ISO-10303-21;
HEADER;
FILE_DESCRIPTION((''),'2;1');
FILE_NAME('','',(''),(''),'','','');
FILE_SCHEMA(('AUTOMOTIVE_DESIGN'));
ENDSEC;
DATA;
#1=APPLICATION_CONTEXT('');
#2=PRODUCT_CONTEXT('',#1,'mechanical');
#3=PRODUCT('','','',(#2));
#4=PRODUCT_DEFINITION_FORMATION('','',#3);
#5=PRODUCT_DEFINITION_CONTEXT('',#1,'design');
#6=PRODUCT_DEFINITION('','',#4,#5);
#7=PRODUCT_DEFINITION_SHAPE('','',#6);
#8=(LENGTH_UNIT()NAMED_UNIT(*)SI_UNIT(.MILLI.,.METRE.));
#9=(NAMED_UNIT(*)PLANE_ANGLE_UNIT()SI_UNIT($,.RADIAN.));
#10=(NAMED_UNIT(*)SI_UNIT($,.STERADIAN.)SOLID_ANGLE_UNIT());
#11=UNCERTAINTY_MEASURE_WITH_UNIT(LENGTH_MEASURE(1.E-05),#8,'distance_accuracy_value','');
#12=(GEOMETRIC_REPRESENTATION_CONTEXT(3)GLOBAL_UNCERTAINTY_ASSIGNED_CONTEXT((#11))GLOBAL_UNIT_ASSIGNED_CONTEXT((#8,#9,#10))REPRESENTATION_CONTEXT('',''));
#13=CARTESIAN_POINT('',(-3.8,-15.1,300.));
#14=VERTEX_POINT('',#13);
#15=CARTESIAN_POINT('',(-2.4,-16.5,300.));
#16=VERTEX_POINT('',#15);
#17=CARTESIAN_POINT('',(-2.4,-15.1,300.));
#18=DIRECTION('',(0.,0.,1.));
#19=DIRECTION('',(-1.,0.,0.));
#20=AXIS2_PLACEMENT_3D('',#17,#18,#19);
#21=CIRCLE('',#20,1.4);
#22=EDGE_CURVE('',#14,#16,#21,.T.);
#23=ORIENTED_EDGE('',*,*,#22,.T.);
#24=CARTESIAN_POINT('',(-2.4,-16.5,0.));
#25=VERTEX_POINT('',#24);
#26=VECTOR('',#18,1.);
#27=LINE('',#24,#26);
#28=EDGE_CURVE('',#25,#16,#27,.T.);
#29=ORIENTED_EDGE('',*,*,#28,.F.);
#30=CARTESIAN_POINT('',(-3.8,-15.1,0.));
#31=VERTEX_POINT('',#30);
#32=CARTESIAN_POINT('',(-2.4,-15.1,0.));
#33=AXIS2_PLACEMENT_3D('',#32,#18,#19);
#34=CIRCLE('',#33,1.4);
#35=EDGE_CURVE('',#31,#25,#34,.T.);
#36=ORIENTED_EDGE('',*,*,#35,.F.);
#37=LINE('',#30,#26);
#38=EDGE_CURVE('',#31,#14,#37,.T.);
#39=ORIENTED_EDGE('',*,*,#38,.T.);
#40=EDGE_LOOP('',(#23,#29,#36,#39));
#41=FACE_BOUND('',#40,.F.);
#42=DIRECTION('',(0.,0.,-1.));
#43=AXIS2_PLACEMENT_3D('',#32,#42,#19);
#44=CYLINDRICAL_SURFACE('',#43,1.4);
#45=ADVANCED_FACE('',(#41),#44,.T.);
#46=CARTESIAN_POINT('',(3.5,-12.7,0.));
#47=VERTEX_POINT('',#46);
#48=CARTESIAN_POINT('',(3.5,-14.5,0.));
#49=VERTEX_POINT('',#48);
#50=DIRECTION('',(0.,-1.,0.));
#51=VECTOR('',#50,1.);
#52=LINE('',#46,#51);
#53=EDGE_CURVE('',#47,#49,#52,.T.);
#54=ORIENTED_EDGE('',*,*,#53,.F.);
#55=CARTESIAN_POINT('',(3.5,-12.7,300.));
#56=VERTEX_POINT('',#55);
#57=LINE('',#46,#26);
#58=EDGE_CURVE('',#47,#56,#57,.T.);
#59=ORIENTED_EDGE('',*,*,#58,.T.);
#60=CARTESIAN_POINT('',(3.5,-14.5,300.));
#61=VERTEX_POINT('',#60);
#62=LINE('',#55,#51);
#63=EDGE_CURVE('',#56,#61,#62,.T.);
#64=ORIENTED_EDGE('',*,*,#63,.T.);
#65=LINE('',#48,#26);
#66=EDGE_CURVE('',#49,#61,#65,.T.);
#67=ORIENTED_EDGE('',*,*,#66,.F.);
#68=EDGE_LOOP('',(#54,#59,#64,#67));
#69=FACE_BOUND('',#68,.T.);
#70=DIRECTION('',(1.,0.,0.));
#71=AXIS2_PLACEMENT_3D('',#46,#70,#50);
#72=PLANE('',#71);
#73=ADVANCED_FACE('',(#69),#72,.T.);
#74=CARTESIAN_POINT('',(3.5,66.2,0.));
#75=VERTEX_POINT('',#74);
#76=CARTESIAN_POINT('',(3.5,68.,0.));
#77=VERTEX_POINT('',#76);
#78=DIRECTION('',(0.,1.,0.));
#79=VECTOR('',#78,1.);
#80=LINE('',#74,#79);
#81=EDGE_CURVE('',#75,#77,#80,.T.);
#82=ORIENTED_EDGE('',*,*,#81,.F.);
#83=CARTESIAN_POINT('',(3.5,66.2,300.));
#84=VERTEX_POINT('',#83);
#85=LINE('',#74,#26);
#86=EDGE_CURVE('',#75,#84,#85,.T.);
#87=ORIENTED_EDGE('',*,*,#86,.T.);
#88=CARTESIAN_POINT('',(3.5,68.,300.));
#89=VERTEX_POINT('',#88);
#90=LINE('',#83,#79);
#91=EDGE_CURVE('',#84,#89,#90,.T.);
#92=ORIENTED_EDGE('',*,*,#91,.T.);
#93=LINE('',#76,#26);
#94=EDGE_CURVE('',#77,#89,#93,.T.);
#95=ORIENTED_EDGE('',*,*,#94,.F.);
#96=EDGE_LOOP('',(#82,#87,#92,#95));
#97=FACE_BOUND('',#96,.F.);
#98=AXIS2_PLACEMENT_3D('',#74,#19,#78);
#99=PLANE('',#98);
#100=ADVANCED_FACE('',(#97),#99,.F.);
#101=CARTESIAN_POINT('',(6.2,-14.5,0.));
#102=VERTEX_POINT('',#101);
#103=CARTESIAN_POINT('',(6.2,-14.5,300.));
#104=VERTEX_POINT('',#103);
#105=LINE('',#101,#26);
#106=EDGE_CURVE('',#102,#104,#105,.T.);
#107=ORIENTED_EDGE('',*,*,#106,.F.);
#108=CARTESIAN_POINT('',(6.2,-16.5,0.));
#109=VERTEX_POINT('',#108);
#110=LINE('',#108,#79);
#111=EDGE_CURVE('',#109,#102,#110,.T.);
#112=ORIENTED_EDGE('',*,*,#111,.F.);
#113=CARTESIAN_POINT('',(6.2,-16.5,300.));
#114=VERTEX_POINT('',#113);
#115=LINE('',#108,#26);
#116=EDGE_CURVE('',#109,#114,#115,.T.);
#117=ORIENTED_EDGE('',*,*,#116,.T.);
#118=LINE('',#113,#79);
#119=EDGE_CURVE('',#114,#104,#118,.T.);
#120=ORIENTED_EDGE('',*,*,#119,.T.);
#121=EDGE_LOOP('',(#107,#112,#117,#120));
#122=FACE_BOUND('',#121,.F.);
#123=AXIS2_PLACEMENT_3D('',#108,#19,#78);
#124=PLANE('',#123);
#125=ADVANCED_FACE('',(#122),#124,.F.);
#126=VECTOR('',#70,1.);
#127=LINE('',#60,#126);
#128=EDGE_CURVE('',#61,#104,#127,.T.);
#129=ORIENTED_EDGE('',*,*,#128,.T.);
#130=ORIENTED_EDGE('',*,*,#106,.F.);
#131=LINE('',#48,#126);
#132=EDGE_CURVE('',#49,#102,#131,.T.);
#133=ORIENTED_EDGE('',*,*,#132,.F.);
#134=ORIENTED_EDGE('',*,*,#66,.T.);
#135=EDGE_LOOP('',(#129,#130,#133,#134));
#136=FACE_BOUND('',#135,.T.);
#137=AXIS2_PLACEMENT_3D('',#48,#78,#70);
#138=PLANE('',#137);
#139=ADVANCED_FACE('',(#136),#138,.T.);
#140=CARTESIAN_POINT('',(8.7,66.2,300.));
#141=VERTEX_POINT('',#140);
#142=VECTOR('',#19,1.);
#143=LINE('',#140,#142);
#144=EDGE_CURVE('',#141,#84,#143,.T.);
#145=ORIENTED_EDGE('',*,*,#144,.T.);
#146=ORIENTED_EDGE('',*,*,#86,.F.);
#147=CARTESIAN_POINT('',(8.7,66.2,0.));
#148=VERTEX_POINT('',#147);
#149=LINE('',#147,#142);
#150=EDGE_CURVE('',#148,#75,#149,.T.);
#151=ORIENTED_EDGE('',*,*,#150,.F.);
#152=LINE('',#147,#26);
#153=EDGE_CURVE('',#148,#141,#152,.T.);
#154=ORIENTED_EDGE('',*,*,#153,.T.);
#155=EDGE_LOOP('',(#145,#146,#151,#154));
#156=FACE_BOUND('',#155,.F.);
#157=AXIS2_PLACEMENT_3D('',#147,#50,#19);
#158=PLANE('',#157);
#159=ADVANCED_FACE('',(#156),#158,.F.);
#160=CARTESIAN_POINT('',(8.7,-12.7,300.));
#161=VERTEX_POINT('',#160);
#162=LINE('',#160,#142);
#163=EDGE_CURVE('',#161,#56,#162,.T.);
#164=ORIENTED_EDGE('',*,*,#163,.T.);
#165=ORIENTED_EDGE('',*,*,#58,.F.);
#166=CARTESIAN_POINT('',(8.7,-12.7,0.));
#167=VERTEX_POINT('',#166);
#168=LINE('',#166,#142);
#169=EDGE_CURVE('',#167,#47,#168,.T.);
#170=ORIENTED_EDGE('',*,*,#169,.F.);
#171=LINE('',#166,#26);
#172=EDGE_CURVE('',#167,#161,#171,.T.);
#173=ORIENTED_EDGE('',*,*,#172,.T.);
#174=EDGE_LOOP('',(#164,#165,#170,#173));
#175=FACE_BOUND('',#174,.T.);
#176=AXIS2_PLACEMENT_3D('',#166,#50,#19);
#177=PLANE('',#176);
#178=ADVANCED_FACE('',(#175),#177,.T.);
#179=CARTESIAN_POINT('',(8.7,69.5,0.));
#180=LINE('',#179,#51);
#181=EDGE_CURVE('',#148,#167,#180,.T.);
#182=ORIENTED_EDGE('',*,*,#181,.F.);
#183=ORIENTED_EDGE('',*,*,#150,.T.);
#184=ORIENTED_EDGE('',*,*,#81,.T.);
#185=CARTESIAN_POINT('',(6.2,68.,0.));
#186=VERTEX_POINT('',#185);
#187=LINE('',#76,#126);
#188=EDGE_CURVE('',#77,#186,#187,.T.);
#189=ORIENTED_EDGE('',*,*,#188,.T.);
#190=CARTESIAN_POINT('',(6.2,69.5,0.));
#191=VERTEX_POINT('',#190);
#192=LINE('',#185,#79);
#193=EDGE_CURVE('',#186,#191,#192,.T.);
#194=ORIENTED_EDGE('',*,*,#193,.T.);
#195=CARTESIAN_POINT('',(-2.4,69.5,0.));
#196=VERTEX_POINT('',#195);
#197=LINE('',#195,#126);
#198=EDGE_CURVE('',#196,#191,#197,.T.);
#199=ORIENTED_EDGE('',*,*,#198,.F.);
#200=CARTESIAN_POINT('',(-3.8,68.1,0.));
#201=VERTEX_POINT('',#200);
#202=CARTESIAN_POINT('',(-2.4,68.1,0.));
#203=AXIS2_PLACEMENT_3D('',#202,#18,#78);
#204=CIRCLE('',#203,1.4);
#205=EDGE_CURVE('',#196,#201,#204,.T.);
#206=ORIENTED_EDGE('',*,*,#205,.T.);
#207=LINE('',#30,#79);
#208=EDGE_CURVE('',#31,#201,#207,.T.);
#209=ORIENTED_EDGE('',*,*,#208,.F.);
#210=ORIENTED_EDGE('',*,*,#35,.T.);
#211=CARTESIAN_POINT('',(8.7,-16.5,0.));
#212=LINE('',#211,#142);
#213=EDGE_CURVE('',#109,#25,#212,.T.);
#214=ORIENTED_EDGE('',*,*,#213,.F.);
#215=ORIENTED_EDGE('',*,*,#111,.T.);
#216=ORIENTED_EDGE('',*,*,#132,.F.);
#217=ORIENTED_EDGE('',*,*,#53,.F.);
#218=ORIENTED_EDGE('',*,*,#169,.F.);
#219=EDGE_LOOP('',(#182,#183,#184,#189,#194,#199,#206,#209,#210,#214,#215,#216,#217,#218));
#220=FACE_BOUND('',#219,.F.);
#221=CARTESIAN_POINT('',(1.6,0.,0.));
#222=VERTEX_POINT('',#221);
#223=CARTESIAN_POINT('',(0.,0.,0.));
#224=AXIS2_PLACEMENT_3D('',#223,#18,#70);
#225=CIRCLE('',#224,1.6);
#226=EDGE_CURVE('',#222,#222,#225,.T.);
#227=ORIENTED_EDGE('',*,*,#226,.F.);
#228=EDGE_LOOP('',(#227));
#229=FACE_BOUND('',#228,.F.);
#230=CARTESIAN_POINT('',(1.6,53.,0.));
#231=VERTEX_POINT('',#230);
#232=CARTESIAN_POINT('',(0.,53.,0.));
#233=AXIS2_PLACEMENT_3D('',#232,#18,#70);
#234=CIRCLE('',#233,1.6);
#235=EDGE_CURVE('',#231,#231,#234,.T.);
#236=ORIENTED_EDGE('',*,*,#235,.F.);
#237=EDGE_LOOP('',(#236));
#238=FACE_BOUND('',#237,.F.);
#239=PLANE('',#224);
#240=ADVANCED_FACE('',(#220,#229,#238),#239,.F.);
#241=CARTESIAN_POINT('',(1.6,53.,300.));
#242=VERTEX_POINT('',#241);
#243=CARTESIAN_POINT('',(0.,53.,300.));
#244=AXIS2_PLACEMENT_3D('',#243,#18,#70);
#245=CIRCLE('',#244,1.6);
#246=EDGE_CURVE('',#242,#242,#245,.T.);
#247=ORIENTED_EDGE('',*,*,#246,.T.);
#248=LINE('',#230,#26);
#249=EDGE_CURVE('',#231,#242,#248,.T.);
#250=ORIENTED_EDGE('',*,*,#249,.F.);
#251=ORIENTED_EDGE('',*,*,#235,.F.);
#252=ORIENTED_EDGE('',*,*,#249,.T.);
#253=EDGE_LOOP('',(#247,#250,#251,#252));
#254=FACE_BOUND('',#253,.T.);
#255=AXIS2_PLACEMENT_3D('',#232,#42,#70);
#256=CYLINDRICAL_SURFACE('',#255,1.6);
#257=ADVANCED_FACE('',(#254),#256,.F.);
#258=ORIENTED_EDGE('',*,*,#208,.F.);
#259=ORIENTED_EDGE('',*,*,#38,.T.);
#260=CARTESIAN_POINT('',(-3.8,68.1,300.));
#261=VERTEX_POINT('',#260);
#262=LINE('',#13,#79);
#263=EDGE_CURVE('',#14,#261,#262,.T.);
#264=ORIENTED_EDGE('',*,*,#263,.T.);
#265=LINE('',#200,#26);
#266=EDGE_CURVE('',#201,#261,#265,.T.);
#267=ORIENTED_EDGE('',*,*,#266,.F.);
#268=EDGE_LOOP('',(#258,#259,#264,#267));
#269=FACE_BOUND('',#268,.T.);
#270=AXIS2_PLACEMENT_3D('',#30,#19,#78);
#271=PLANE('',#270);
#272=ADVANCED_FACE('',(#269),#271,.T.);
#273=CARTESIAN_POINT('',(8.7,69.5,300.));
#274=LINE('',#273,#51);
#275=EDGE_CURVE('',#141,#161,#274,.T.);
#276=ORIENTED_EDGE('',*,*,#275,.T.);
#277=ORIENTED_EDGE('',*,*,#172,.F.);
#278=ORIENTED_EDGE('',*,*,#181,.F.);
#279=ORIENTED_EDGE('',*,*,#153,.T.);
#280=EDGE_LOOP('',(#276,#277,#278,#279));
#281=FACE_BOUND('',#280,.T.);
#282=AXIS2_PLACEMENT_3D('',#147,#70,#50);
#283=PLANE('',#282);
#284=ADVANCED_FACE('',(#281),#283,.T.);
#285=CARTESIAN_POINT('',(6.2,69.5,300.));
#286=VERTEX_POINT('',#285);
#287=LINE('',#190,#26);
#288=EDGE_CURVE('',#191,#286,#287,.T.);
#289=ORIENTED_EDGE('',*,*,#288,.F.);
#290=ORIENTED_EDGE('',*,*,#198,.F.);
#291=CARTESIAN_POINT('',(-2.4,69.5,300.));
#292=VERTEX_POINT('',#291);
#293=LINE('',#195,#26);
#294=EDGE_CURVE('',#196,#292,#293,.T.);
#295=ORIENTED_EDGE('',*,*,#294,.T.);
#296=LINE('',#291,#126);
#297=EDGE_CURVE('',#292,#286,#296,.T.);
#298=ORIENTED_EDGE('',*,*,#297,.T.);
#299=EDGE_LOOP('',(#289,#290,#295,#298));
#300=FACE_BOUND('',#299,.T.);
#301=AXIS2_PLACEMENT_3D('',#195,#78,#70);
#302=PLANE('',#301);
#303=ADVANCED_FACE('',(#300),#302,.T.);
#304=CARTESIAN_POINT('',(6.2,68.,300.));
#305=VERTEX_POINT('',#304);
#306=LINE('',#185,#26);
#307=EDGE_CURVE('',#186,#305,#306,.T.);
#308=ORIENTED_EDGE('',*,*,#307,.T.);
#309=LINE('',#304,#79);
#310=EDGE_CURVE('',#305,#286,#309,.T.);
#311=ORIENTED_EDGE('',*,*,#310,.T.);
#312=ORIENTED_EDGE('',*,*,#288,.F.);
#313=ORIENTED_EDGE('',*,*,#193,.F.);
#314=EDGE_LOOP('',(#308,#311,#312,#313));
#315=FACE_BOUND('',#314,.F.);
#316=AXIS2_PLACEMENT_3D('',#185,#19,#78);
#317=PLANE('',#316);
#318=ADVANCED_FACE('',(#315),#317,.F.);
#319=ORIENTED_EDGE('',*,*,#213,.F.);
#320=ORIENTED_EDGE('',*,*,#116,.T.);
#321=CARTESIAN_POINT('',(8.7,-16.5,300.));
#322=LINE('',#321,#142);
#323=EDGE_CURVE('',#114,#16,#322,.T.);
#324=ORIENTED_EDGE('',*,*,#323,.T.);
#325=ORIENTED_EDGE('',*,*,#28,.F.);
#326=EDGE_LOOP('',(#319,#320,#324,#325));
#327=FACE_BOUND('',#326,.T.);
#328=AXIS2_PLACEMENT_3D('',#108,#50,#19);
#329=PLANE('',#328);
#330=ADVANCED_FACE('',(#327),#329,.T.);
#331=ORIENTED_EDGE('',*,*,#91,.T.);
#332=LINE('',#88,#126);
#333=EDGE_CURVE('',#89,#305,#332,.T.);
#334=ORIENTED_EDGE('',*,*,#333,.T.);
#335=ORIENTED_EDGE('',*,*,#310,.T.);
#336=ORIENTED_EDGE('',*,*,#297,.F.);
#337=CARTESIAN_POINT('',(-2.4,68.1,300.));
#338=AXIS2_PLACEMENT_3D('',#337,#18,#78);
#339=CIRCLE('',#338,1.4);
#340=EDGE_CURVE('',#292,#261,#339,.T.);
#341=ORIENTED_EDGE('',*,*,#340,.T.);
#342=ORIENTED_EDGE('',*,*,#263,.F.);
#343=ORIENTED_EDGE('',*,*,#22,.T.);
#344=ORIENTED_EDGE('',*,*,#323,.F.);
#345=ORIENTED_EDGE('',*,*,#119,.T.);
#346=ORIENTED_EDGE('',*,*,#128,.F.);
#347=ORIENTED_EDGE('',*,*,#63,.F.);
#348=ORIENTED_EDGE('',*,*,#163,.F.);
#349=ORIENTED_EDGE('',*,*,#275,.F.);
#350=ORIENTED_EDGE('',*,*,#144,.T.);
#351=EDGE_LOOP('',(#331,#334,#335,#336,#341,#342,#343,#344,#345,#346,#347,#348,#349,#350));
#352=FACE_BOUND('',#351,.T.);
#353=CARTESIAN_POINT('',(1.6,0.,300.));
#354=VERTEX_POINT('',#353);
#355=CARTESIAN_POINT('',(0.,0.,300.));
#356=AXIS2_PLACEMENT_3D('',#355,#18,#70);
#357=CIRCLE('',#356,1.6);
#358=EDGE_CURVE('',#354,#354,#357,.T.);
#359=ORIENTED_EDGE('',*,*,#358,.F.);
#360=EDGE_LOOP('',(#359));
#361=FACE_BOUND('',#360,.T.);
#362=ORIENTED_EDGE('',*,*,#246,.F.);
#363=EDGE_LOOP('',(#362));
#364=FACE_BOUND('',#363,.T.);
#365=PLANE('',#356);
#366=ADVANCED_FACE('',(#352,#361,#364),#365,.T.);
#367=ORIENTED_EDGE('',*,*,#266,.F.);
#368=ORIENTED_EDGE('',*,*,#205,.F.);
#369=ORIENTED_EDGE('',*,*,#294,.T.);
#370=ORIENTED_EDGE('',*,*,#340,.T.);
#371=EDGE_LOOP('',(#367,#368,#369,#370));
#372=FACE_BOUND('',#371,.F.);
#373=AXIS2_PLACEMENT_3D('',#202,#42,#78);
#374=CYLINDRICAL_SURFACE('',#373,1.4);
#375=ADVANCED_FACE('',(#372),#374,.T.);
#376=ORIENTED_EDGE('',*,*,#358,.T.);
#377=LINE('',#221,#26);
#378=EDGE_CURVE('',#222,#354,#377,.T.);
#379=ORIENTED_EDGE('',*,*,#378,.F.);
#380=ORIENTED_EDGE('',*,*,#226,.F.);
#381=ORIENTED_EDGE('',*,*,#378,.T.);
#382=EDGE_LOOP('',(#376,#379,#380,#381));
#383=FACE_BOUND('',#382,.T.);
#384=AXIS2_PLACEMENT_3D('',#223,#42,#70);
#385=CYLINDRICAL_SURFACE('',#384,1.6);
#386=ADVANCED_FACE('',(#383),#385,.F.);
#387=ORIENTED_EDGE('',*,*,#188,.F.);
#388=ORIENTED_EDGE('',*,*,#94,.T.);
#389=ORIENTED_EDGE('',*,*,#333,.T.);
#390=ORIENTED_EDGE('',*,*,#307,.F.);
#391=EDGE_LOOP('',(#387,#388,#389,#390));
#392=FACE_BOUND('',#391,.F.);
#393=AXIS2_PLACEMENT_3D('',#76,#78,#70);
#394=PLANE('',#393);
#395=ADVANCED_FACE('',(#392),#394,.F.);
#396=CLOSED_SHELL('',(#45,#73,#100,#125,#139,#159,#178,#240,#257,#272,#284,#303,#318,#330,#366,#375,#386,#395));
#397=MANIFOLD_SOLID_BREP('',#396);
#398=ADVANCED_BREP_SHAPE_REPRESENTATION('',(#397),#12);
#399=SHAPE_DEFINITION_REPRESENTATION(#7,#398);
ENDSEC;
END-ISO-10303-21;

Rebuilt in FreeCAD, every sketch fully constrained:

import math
import FreeCAD as App
import Part
import Sketcher

V = App.Vector
Q = App.Units.Quantity

doc = App.newDocument("Part")
params = doc.addObject("Spreadsheet::Sheet", "Params")
for row, (alias, value) in enumerate([
    ("sketch1_diameter", "3.2 mm"),
    ("sketch1_radius", "1.4 mm"),
    ("sketch1_height", "2 mm"),
    ("sketch1_width", "5.2 mm"),
    ("sketch1_height2", "1.8 mm"),
    ("pad1_length", "300 mm"),
], start=1):
    params.set(f"A{row}", alias)
    params.set(f"B{row}", "=" + value)
    params.setAlias(f"B{row}", alias)

body = doc.addObject("PartDesign::Body", "Body")

# Sketch on XY plane
sketch1 = doc.addObject("Sketcher::SketchObject", "Sketch")
body.addObject(sketch1)
sketch1.AttachmentSupport = (doc.XY_Plane, [""])
sketch1.MapMode = "FlatFace"
sketch1.addGeometry([
    Part.LineSegment(V(6.2, 69.5, 0), V(-2.4, 69.5, 0)),  # 0
    Part.ArcOfCircle(Part.Circle(V(-2.4, 68.1, 0), V(0, 0, 1), 1.4), math.radians(90), math.radians(180)),  # 1
    Part.LineSegment(V(-3.8, 68.1, 0), V(-3.8, -15.1, 0)),  # 2
    Part.ArcOfCircle(Part.Circle(V(-2.4, -15.1, 0), V(0, 0, 1), 1.4), math.radians(180), math.radians(270)),  # 3
    Part.LineSegment(V(-2.4, -16.5, 0), V(6.2, -16.5, 0)),  # 4
    Part.LineSegment(V(6.2, -16.5, 0), V(6.2, -14.5, 0)),  # 5
    Part.LineSegment(V(6.2, -14.5, 0), V(3.5, -14.5, 0)),  # 6
    Part.LineSegment(V(3.5, -14.5, 0), V(3.5, -12.7, 0)),  # 7
    Part.LineSegment(V(3.5, -12.7, 0), V(8.7, -12.7, 0)),  # 8
    Part.LineSegment(V(8.7, -12.7, 0), V(8.7, 66.2, 0)),  # 9
    Part.LineSegment(V(8.7, 66.2, 0), V(3.5, 66.2, 0)),  # 10
    Part.LineSegment(V(3.5, 66.2, 0), V(3.5, 68, 0)),  # 11
    Part.LineSegment(V(3.5, 68, 0), V(6.2, 68, 0)),  # 12
    Part.LineSegment(V(6.2, 68, 0), V(6.2, 69.5, 0)),  # 13
    Part.Circle(V(0, 0, 0), V(0, 0, 1), 1.6),  # 14
    Part.Circle(V(0, 53, 0), V(0, 0, 1), 1.6),  # 15
], False)
sketch1.addConstraint([
    Sketcher.Constraint("Tangent", 0, 2, 1, 1),
    Sketcher.Constraint("Tangent", 1, 2, 2, 1),
    Sketcher.Constraint("Tangent", 2, 2, 3, 1),
    Sketcher.Constraint("Tangent", 3, 2, 4, 1),
    Sketcher.Constraint("Coincident", 4, 2, 5, 1),
    Sketcher.Constraint("Coincident", 5, 2, 6, 1),
    Sketcher.Constraint("Coincident", 6, 2, 7, 1),
    Sketcher.Constraint("Coincident", 7, 2, 8, 1),
    Sketcher.Constraint("Coincident", 8, 2, 9, 1),
    Sketcher.Constraint("Coincident", 9, 2, 10, 1),
    Sketcher.Constraint("Coincident", 10, 2, 11, 1),
    Sketcher.Constraint("Coincident", 11, 2, 12, 1),
    Sketcher.Constraint("Coincident", 12, 2, 13, 1),
    Sketcher.Constraint("Coincident", 13, 2, 0, 1),
    Sketcher.Constraint("Horizontal", 0),
    Sketcher.Constraint("Vertical", 2),
    Sketcher.Constraint("Horizontal", 4),
    Sketcher.Constraint("Vertical", 5),
    Sketcher.Constraint("Horizontal", 6),
    Sketcher.Constraint("Vertical", 7),
    Sketcher.Constraint("Horizontal", 8),
    Sketcher.Constraint("Vertical", 9),
    Sketcher.Constraint("Horizontal", 10),
    Sketcher.Constraint("Vertical", 11),
    Sketcher.Constraint("Horizontal", 12),
    Sketcher.Constraint("Vertical", 13),
    Sketcher.Constraint("Coincident", 14, 3, -1, 1),
    Sketcher.Constraint("Equal", 1, 3),
    Sketcher.Constraint("Equal", 14, 15),
    Sketcher.Constraint("PointOnObject", 15, 3, -2),
    Sketcher.Constraint("Vertical", 7, 2, 10, 2),
    Sketcher.Constraint("Vertical", 5, 2, 12, 2),
    Sketcher.Constraint("Equal", 7, 11),
    Sketcher.Constraint("Diameter", 14, Q("3.2 mm")),
    Sketcher.Constraint("Radius", 1, Q("1.4 mm")),
    Sketcher.Constraint("DistanceY", 5, 1, 5, 2, Q("2 mm")),
    Sketcher.Constraint("DistanceX", 8, 1, 8, 2, Q("5.2 mm")),
    Sketcher.Constraint("DistanceY", 7, 1, 7, 2, Q("1.8 mm")),
    Sketcher.Constraint("DistanceY", 13, 1, 13, 2, Q("1.5 mm")),
    Sketcher.Constraint("DistanceX", 1, 2, -1, 1, Q("3.8 mm")),
    Sketcher.Constraint("DistanceY", 3, 2, -1, 1, Q("16.5 mm")),
    Sketcher.Constraint("DistanceY", 15, 3, 0, 2, Q("16.5 mm")),
    Sketcher.Constraint("DistanceX", 5, 2, 8, 2, Q("2.5 mm")),
    Sketcher.Constraint("DistanceX", 1, 2, 9, 2, Q("12.5 mm")),
    Sketcher.Constraint("DistanceY", 2, 2, 2, 1, Q("83.2 mm")),
])
sketch1.setExpression("Constraints[33]", "Params.sketch1_diameter")
sketch1.setExpression("Constraints[34]", "Params.sketch1_radius")
sketch1.setExpression("Constraints[35]", "Params.sketch1_height")
sketch1.setExpression("Constraints[36]", "Params.sketch1_width")
sketch1.setExpression("Constraints[37]", "Params.sketch1_height2")
pad1 = doc.addObject("PartDesign::Pad", "Pad")
body.addObject(pad1)
pad1.Profile = sketch1
pad1.setExpression("Length", "Params.pad1_length")

doc.recompute()
